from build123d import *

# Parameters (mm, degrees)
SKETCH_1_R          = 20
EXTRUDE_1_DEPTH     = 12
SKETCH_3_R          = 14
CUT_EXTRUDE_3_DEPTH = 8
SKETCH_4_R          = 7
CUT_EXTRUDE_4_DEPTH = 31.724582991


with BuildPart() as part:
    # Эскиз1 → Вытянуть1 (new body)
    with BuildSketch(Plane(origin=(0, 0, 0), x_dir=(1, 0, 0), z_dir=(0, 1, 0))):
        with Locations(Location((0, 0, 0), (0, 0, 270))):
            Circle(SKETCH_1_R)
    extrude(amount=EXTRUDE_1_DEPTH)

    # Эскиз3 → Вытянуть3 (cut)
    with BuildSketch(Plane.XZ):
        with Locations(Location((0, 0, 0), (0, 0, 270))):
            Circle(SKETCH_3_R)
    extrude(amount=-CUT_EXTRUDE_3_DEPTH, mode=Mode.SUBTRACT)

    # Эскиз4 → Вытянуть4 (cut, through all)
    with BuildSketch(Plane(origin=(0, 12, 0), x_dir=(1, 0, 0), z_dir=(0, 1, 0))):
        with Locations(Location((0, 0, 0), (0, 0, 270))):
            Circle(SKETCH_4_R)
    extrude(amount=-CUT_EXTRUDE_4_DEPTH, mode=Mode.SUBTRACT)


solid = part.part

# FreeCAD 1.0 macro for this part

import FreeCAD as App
import Part
import Sketcher

V = App.Vector

doc = App.newDocument("Part")
params = doc.addObject("Spreadsheet::Sheet", "Params")
for row, (alias, value) in enumerate([
    ("sketch1_diameter", "40 mm"),
    ("pad1_length", "12 mm"),
    ("sketch2_diameter", "28 mm"),
    ("pocket1_length", "8 mm"),
    ("sketch3_diameter", "14 mm"),
], start=1):
    params.set(f"A{row}", alias)
    params.set(f"B{row}", "=" + value)
    params.setAlias(f"B{row}", alias)

body = doc.addObject("PartDesign::Body", "Body")

sketch1 = doc.addObject("Sketcher::SketchObject", "Sketch")
body.addObject(sketch1)
sketch1.AttachmentSupport = (doc.XZ_Plane, [""])
sketch1.MapMode = "FlatFace"
sketch1.addGeometry(Part.Circle(V(0, 0, 0), V(0, 0, 1), 20), False)
sketch1.addConstraint(Sketcher.Constraint("Coincident", 0, 3, -1, 1))
sketch1.addConstraint(Sketcher.Constraint("Diameter", 0, 40.0))
sketch1.setExpression("Constraints[1]", "Params.sketch1_diameter")
pad1 = doc.addObject("PartDesign::Pad", "Pad")
body.addObject(pad1)
pad1.Profile = sketch1
pad1.setExpression("Length", "Params.pad1_length")
pad1.Reversed = True

sketch2 = doc.addObject("Sketcher::SketchObject", "Sketch001")
body.addObject(sketch2)
sketch2.AttachmentSupport = (doc.XZ_Plane, [""])
sketch2.MapMode = "FlatFace"
sketch2.addGeometry(Part.Circle(V(0, 0, 0), V(0, 0, 1), 14), False)
sketch2.addConstraint(Sketcher.Constraint("Coincident", 0, 3, -1, 1))
sketch2.addConstraint(Sketcher.Constraint("Diameter", 0, 28.0))
sketch2.setExpression("Constraints[1]", "Params.sketch2_diameter")
pocket1 = doc.addObject("PartDesign::Pocket", "Pocket")
body.addObject(pocket1)
pocket1.Profile = sketch2
pocket1.setExpression("Length", "Params.pocket1_length")

sketch3 = doc.addObject("Sketcher::SketchObject", "Sketch002")
body.addObject(sketch3)
sketch3.AttachmentSupport = (doc.XZ_Plane, [""])
sketch3.MapMode = "FlatFace"
sketch3.AttachmentOffset = App.Placement(V(0, 0, -12), App.Rotation())
sketch3.addGeometry(Part.Circle(V(0, 0, 0), V(0, 0, 1), 7), False)
sketch3.addConstraint(Sketcher.Constraint("Coincident", 0, 3, -1, 1))
sketch3.addConstraint(Sketcher.Constraint("Diameter", 0, 14.0))
sketch3.setExpression("Constraints[1]", "Params.sketch3_diameter")
pocket2 = doc.addObject("PartDesign::Pocket", "Pocket001")
body.addObject(pocket2)
pocket2.Profile = sketch3
pocket2.Type = "ThroughAll"
pocket2.Reversed = True

doc.recompute()
